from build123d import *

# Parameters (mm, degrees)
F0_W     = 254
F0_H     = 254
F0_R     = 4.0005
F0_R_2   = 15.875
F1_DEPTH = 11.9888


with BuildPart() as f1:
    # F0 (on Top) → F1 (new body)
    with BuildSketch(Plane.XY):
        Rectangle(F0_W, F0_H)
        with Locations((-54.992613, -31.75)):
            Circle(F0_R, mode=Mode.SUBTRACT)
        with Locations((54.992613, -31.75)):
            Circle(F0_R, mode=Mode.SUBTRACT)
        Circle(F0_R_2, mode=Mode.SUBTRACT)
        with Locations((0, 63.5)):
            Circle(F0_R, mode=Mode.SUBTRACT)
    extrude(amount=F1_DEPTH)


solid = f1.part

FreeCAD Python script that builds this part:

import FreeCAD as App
import Part
import Sketcher

V = App.Vector
Q = App.Units.Quantity

doc = App.newDocument("Part")
body = doc.addObject("PartDesign::Body", "Body")

sketch1 = doc.addObject("Sketcher::SketchObject", "Sketch")
body.addObject(sketch1)
sketch1.AttachmentSupport = (doc.XY_Plane, [""])
sketch1.MapMode = "FlatFace"
sketch1.addGeometry([
    Part.LineSegment(V(-127, 127, 0), V(-127, -127, 0)),
    Part.LineSegment(V(-127, -127, 0), V(127, -127, 0)),
    Part.LineSegment(V(127, -127, 0), V(127, 127, 0)),
    Part.LineSegment(V(127, 127, 0), V(-127, 127, 0)),
    Part.Circle(V(-54.992613, -31.75, 0), V(0, 0, 1), 4.0005),
    Part.Circle(V(54.992613, -31.75, 0), V(0, 0, 1), 4.0005),
    Part.Circle(V(0, 0, 0), V(0, 0, 1), 15.875),
    Part.Circle(V(0, 63.5, 0), V(0, 0, 1), 4.0005),
], False)
sketch1.addConstraint([
    Sketcher.Constraint("Coincident", 0, 2, 1, 1),
    Sketcher.Constraint("Coincident", 1, 2, 2, 1),
    Sketcher.Constraint("Coincident", 2, 2, 3, 1),
    Sketcher.Constraint("Coincident", 3, 2, 0, 1),
    Sketcher.Constraint("Vertical", 0),
    Sketcher.Constraint("Horizontal", 1),
    Sketcher.Constraint("Vertical", 2),
    Sketcher.Constraint("Horizontal", 3),
    Sketcher.Constraint("Coincident", 6, 3, -1, 1),
    Sketcher.Constraint("Equal", 4, 5),
    Sketcher.Constraint("Equal", 5, 7),
    Sketcher.Constraint("Symmetric", 0, 2, 2, 2, -1, 1),
    Sketcher.Constraint("Symmetric", 4, 3, 5, 3, -2),
    Sketcher.Constraint("PointOnObject", 7, 3, -2),
    Sketcher.Constraint("Equal", 3, 0),
    Sketcher.Constraint("Diameter", 6, Q("1.25 in")),
    Sketcher.Constraint("DistanceX", 1, 1, 1, 2, Q("10 in")),
    Sketcher.Constraint("Diameter", 4, Q("0.315 in")),
    Sketcher.Constraint("DistanceY", -1, 1, 7, 3, Q("2.5 in")),
    Sketcher.Constraint("DistanceY", 4, 3, -1, 1, Q("1.25 in")),
    Sketcher.Constraint("DistanceX", 4, 3, -1, 1, Q("54.992613 mm")),
])
pad1 = doc.addObject("PartDesign::Pad", "Pad")
body.addObject(pad1)
pad1.Profile = sketch1
pad1.Length = Q("0.472 in")

doc.recompute()
